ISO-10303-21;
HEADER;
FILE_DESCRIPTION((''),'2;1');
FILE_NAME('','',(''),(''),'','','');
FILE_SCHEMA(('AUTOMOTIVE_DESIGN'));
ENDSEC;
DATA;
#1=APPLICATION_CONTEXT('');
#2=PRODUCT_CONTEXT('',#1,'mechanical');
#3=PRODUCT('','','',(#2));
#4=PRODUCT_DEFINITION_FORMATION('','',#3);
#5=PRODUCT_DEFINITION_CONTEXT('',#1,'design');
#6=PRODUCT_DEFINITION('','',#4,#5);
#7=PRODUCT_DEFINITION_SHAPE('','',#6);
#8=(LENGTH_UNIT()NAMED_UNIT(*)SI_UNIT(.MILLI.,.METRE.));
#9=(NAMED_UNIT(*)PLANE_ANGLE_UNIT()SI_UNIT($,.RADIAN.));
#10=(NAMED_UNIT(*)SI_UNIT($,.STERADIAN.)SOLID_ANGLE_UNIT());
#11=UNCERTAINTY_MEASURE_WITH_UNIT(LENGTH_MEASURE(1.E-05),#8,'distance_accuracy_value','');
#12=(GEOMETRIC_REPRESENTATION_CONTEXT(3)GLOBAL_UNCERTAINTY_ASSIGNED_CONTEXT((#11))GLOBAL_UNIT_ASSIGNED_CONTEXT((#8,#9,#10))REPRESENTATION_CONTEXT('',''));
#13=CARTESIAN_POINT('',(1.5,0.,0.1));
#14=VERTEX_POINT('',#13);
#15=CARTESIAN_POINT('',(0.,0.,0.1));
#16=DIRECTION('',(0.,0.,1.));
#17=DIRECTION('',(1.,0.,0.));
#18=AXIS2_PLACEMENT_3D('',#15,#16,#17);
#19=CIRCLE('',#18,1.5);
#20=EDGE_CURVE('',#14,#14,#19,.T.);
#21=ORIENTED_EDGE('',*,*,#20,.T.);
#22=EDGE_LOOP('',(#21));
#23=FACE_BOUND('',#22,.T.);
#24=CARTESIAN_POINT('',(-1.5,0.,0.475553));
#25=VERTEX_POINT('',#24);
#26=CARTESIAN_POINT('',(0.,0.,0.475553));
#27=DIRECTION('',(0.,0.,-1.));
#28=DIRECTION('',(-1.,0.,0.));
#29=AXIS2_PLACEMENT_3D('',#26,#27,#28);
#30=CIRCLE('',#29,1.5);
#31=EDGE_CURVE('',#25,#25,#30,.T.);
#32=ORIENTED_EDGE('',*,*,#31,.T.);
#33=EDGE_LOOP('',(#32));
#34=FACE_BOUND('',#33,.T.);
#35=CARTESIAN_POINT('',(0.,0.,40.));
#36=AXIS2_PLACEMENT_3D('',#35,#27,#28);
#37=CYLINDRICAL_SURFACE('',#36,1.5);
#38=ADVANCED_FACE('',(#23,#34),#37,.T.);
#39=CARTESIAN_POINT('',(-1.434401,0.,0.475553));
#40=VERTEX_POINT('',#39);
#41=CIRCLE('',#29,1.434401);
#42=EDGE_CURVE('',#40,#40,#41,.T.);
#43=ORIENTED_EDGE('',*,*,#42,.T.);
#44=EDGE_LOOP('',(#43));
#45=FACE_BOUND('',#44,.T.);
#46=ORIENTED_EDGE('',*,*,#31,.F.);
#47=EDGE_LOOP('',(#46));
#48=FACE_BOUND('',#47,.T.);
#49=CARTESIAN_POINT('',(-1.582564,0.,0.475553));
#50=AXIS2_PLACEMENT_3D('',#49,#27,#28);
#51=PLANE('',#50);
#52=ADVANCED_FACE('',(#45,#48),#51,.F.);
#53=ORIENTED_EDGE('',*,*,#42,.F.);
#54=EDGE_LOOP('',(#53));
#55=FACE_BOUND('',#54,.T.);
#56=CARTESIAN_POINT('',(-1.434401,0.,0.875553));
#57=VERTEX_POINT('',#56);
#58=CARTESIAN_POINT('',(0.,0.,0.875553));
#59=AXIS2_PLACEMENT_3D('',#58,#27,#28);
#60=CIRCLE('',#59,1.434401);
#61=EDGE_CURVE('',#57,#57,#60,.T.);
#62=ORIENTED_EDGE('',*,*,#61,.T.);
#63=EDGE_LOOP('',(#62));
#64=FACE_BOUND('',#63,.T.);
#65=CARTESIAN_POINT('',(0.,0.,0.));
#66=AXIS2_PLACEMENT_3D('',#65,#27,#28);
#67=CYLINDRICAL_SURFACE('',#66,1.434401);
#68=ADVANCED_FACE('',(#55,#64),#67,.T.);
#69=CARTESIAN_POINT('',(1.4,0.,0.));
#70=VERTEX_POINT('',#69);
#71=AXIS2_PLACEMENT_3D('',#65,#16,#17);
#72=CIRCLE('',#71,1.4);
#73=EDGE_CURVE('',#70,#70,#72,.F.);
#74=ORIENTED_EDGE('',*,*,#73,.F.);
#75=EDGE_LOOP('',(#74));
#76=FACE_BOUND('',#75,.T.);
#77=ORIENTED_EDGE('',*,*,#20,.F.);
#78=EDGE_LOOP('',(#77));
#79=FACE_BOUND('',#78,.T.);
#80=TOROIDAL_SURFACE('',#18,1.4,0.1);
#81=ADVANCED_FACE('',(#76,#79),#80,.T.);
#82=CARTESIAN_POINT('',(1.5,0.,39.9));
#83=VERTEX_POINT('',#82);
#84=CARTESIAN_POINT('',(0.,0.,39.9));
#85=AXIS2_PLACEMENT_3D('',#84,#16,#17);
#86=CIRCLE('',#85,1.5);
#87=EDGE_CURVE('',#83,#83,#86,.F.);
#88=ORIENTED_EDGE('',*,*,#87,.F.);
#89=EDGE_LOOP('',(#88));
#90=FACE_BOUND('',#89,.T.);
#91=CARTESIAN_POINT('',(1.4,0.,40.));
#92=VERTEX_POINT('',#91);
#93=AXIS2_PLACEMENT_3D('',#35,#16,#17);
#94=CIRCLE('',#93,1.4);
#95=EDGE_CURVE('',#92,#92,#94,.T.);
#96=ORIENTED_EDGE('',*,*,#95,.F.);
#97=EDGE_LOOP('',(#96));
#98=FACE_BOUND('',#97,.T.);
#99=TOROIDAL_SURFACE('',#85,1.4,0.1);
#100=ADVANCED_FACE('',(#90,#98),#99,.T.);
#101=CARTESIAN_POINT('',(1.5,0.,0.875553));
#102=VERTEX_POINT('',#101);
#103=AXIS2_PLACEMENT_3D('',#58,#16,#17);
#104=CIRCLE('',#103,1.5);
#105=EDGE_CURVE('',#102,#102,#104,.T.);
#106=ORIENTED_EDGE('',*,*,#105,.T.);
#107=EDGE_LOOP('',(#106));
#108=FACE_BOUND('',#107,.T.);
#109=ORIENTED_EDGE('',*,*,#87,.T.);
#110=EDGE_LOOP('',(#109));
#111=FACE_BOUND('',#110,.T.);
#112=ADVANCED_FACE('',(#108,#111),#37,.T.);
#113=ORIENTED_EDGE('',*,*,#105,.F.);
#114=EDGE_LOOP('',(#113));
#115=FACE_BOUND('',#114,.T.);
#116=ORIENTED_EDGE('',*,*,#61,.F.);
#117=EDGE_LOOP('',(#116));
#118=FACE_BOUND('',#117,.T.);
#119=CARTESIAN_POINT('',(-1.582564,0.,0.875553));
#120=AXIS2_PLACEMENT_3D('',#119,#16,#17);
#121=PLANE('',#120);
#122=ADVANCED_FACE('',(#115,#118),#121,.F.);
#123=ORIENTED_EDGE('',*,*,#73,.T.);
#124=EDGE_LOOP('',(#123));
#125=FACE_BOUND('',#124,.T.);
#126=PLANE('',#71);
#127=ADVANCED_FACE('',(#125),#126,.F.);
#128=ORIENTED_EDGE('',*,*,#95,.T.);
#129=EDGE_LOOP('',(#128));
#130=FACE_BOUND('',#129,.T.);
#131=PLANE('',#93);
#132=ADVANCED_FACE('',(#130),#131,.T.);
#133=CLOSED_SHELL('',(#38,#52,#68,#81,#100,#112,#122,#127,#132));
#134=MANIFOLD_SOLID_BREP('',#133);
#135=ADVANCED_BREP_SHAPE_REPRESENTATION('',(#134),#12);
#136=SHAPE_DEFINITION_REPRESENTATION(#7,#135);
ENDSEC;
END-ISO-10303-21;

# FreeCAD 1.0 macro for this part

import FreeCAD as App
import Part
import Sketcher

V = App.Vector
Q = App.Units.Quantity


def edges_at(feature, points):
    """Names of the edges that pass closest to the given points."""
    edges = feature.Shape.Edges
    near = lambda p: min(range(len(edges)), key=lambda i: edges[i].distToShape(Part.Vertex(*p))[0])
    return sorted({f"Edge{near(p) + 1}" for p in points})


def add_polygon(sketch, points):
    """Adds a closed chain of lines whose ends are joined by coincident constraints."""
    first, n = sketch.GeometryCount, len(points)
    for a, b in zip(points, points[1:] + points[:1]):
        sketch.addGeometry(Part.LineSegment(App.Vector(*a, 0), App.Vector(*b, 0)), False)
    for i in range(n):
        sketch.addConstraint(Sketcher.Constraint("Coincident", first + i, 2, first + (i + 1) % n, 1))

doc = App.newDocument("Part")
body = doc.addObject("PartDesign::Body", "Body")

sketch1 = body.newObject("Sketcher::SketchObject", "Sketch")
sketch1.AttachmentSupport = (doc.getObject("XY_Plane"), [""])
sketch1.MapMode = "FlatFace"
sketch1.addGeometry(Part.Circle(V(0, 0, 0), V(0, 0, 1), 1.5), False)
sketch1.addConstraint([
    Sketcher.Constraint("Coincident", 0, 3, -1, 1),
    Sketcher.Constraint("Diameter", 0, Q("3 mm")),
])
pad1 = body.newObject("PartDesign::Pad", "Pad")
pad1.Profile = sketch1
pad1.Length = 40
doc.recompute()

fillet = body.newObject("PartDesign::Fillet", "Fillet")
fillet.Base = (pad1, edges_at(pad1, [(-1.5, 0, 40)]))
fillet.Radius = 0.1
doc.recompute()

fillet2 = body.newObject("PartDesign::Fillet", "Fillet001")
fillet2.Base = (fillet, edges_at(fillet, [(-1.5, 0, 0)]))
fillet2.Radius = 0.1

sketch2 = body.newObject("Sketcher::SketchObject", "Sketch001")
sketch2.AttachmentSupport = (doc.getObject("XZ_Plane"), [""])
sketch2.MapMode = "FlatFace"
add_polygon(sketch2, [(-1.582564, 0.475553), (-1.582564, 0.875553), (-1.434401, 0.875553), (-1.434401, 0.475553)])
sketch2.addConstraint([
    Sketcher.Constraint("Vertical", 0),
    Sketcher.Constraint("Horizontal", 1),
    Sketcher.Constraint("Vertical", 2),
    Sketcher.Constraint("Horizontal", 3),
    Sketcher.Constraint("DistanceY", 0, 1, 0, 2, Q("0.4 mm")),
    Sketcher.Constraint("DistanceX", 1, 2, -1, 1, Q("1.434401 mm")),
    Sketcher.Constraint("DistanceX", 1, 1, 1, 2, Q("0.148163 mm")),
    Sketcher.Constraint("DistanceY", -1, 1, 0, 2, Q("0.875553 mm")),
])
groove = body.newObject("PartDesign::Groove", "Groove")
groove.Profile = sketch2
groove.ReferenceAxis = (sketch2, ["V_Axis"])
groove.Angle = 360

doc.recompute()
